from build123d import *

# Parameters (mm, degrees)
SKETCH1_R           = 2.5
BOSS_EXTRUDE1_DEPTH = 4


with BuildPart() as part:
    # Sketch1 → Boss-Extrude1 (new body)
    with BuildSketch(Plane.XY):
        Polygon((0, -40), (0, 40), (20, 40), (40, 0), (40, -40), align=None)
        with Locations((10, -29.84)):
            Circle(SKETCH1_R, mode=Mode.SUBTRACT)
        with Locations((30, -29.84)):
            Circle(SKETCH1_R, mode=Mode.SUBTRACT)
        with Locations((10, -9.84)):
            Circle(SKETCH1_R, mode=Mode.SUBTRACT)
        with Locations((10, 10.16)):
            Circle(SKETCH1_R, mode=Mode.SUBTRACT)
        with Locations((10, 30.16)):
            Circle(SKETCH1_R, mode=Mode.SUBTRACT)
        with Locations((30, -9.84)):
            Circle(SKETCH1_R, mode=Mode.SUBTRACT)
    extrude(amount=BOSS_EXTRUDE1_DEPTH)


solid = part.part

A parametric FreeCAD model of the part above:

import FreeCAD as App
import Part
import Sketcher

V = App.Vector

doc = App.newDocument("Part")
body = doc.addObject("PartDesign::Body", "Body")

sketch1 = body.newObject("Sketcher::SketchObject", "Sketch")
sketch1.AttachmentSupport = (doc.getObject("XY_Plane"), [""])
sketch1.MapMode = "FlatFace"
sketch1.addGeometry(Part.LineSegment(V(0, 40, 0), V(0, -40, 0)), False)
sketch1.addGeometry(Part.LineSegment(V(0, -40, 0), V(40, -40, 0)), False)
sketch1.addGeometry(Part.LineSegment(V(40, -40, 0), V(40, 0, 0)), False)
sketch1.addGeometry(Part.LineSegment(V(40, 0, 0), V(20, 40, 0)), False)
sketch1.addGeometry(Part.LineSegment(V(20, 40, 0), V(0, 40, 0)), False)
sketch1.addGeometry(Part.Circle(V(30, -29.84, 0), V(0, 0, 1), 2.5), False)
sketch1.addGeometry(Part.Circle(V(30, -9.84, 0), V(0, 0, 1), 2.5), False)
sketch1.addGeometry(Part.Circle(V(10, -29.84, 0), V(0, 0, 1), 2.5), False)
sketch1.addGeometry(Part.Circle(V(10, -9.84, 0), V(0, 0, 1), 2.5), False)
sketch1.addGeometry(Part.Circle(V(10, 10.16, 0), V(0, 0, 1), 2.5), False)
sketch1.addGeometry(Part.Circle(V(10, 30.16, 0), V(0, 0, 1), 2.5), False)
sketch1.addConstraint(Sketcher.Constraint("Coincident", 0, 2, 1, 1))
sketch1.addConstraint(Sketcher.Constraint("Coincident", 1, 2, 2, 1))
sketch1.addConstraint(Sketcher.Constraint("Coincident", 2, 2, 3, 1))
sketch1.addConstraint(Sketcher.Constraint("Coincident", 3, 2, 4, 1))
sketch1.addConstraint(Sketcher.Constraint("Coincident", 4, 2, 0, 1))
sketch1.addConstraint(Sketcher.Constraint("Vertical", 0))
sketch1.addConstraint(Sketcher.Constraint("Horizontal", 1))
sketch1.addConstraint(Sketcher.Constraint("Vertical", 2))
sketch1.addConstraint(Sketcher.Constraint("Horizontal", 4))
sketch1.addConstraint(Sketcher.Constraint("Equal", 5, 6))
sketch1.addConstraint(Sketcher.Constraint("Equal", 6, 7))
sketch1.addConstraint(Sketcher.Constraint("Equal", 7, 8))
sketch1.addConstraint(Sketcher.Constraint("Equal", 8, 9))
sketch1.addConstraint(Sketcher.Constraint("Equal", 9, 10))
sketch1.addConstraint(Sketcher.Constraint("Symmetric", 0, 2, 4, 2, -1, 1))
sketch1.addConstraint(Sketcher.Constraint("PointOnObject", 2, 2, -1))
sketch1.addConstraint(Sketcher.Constraint("Horizontal", 5, 3, 7, 3))
sketch1.addConstraint(Sketcher.Constraint("Horizontal", 6, 3, 8, 3))
sketch1.addConstraint(Sketcher.Constraint("Vertical", 5, 3, 6, 3))
sketch1.addConstraint(Sketcher.Constraint("Vertical", 7, 3, 8, 3))
sketch1.addConstraint(Sketcher.Constraint("Vertical", 8, 3, 9, 3))
sketch1.addConstraint(Sketcher.Constraint("Vertical", 9, 3, 10, 3))
sketch1.addConstraint(Sketcher.Constraint("Equal", 1, 2))
sketch1.addConstraint(Sketcher.Constraint("Diameter", 5, 5.0))
sketch1.addConstraint(Sketcher.Constraint("DistanceX", 1, 1, 1, 2, 40.0))
sketch1.addConstraint(Sketcher.Constraint("DistanceX", 4, 2, 4, 1, 20.0))
sketch1.addConstraint(Sketcher.Constraint("DistanceX", -1, 1, 5, 3, 30.0))
sketch1.addConstraint(Sketcher.Constraint("DistanceX", -1, 1, 7, 3, 10.0))
sketch1.addConstraint(Sketcher.Constraint("DistanceY", 5, 3, 6, 3, 20.0))
sketch1.addConstraint(Sketcher.Constraint("DistanceY", 8, 3, 9, 3, 20.0))
sketch1.addConstraint(Sketcher.Constraint("DistanceY", 9, 3, 10, 3, 20.0))
sketch1.addConstraint(Sketcher.Constraint("DistanceY", 5, 3, -1, 1, 29.84))
pad1 = body.newObject("PartDesign::Pad", "Pad")
pad1.Profile = sketch1
pad1.Length = 4

doc.recompute()
